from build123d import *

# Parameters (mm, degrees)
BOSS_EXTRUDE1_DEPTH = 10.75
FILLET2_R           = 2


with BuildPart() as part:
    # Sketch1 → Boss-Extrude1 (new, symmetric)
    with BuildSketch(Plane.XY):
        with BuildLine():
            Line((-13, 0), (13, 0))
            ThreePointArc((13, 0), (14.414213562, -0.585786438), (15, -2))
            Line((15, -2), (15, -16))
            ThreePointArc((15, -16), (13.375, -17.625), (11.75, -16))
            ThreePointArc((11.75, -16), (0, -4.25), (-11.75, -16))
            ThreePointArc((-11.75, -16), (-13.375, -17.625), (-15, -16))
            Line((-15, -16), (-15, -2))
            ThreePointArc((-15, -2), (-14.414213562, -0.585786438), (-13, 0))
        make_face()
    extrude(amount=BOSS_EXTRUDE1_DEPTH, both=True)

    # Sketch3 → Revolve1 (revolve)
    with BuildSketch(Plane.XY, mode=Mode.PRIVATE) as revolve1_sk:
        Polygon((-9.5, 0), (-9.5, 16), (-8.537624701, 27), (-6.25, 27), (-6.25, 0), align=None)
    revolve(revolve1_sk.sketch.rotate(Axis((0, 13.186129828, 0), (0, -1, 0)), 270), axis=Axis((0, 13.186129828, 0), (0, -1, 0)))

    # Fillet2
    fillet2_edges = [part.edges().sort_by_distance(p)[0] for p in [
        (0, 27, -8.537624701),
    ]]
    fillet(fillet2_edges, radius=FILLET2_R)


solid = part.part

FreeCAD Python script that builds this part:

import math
import FreeCAD as App
import Part
import Sketcher

V = App.Vector
Q = App.Units.Quantity


def edges_at(feature, points):
    """Names of the edges that pass closest to the given points."""
    edges = feature.Shape.Edges
    near = lambda p: min(range(len(edges)), key=lambda i: edges[i].distToShape(Part.Vertex(*p))[0])
    return sorted({f"Edge{near(p) + 1}" for p in points})

doc = App.newDocument("Part")
body = doc.addObject("PartDesign::Body", "Body")

# Sketch on XY plane
sketch1 = body.newObject("Sketcher::SketchObject", "Sketch")
sketch1.AttachmentSupport = (doc.getObject("XY_Plane"), [""])
sketch1.MapMode = "FlatFace"
sketch1.addGeometry(Part.LineSegment(V(13, 0, 0), V(-13, 0, 0)), False)
sketch1.addGeometry(Part.ArcOfCircle(Part.Circle(V(-13, -2, 0), V(0, 0, 1), 2), math.radians(90), math.radians(180)), False)
sketch1.addGeometry(Part.LineSegment(V(-15, -2, 0), V(-15, -16, 0)), False)
sketch1.addGeometry(Part.ArcOfCircle(Part.Circle(V(-13.375, -16, 0), V(0, 0, 1), 1.625), math.radians(180), math.radians(360)), False)
sketch1.addGeometry(Part.ArcOfCircle(Part.Circle(V(0, -16, 0), V(0, 0, 1), 11.75), math.radians(0), math.radians(180)), False)
sketch1.addGeometry(Part.ArcOfCircle(Part.Circle(V(13.375, -16, 0), V(0, 0, 1), 1.625), math.radians(180), math.radians(360)), False)
sketch1.addGeometry(Part.LineSegment(V(15, -16, 0), V(15, -2, 0)), False)
sketch1.addGeometry(Part.ArcOfCircle(Part.Circle(V(13, -2, 0), V(0, 0, 1), 2), math.radians(0), math.radians(90)), False)
sketch1.addConstraint(Sketcher.Constraint("Tangent", 0, 2, 1, 1))
sketch1.addConstraint(Sketcher.Constraint("Tangent", 1, 2, 2, 1))
sketch1.addConstraint(Sketcher.Constraint("Tangent", 2, 2, 3, 1))
sketch1.addConstraint(Sketcher.Constraint("Tangent", 3, 2, 4, 2))
sketch1.addConstraint(Sketcher.Constraint("Tangent", 4, 1, 5, 1))
sketch1.addConstraint(Sketcher.Constraint("Tangent", 5, 2, 6, 1))
sketch1.addConstraint(Sketcher.Constraint("Tangent", 6, 2, 7, 1))
sketch1.addConstraint(Sketcher.Constraint("Tangent", 7, 2, 0, 1))
sketch1.addConstraint(Sketcher.Constraint("Horizontal", 0))
sketch1.addConstraint(Sketcher.Constraint("Vertical", 2))
sketch1.addConstraint(Sketcher.Constraint("Vertical", 6))
sketch1.addConstraint(Sketcher.Constraint("Equal", 3, 5))
sketch1.addConstraint(Sketcher.Constraint("Equal", 1, 7))
sketch1.addConstraint(Sketcher.Constraint("Symmetric", 0, 2, 7, 2, -1, 1))
sketch1.addConstraint(Sketcher.Constraint("Horizontal", 3, 3, 4, 3))
sketch1.addConstraint(Sketcher.Constraint("Horizontal", 4, 3, 5, 3))
sketch1.addConstraint(Sketcher.Constraint("Radius", 1, 2.0))
sketch1.addConstraint(Sketcher.Constraint("DistanceX", 0, 2, 0, 1, 26.0))
sketch1.addConstraint(Sketcher.Constraint("DistanceY", 2, 2, 2, 1, 14.0))
sketch1.addConstraint(Sketcher.Constraint("Radius", 4, 11.75))
pad1 = body.newObject("PartDesign::Pad", "Pad")
pad1.Profile = sketch1
pad1.Length = 21.5
pad1.Midplane = True

# Sketch on XY plane
sketch2 = body.newObject("Sketcher::SketchObject", "Sketch001")
sketch2.AttachmentSupport = (doc.getObject("XY_Plane"), [""])
sketch2.MapMode = "FlatFace"
sketch2.addGeometry(Part.LineSegment(V(-9.5, 16, 0), V(-9.5, 0, 0)), False)
sketch2.addGeometry(Part.LineSegment(V(-9.5, 0, 0), V(-6.25, 0, 0)), False)
sketch2.addGeometry(Part.LineSegment(V(-6.25, 0, 0), V(-6.25, 27, 0)), False)
sketch2.addGeometry(Part.LineSegment(V(-6.25, 27, 0), V(-8.537625, 27, 0)), False)
sketch2.addGeometry(Part.LineSegment(V(-8.537625, 27, 0), V(-9.5, 16, 0)), False)
sketch2.addConstraint(Sketcher.Constraint("Coincident", 0, 2, 1, 1))
sketch2.addConstraint(Sketcher.Constraint("Coincident", 1, 2, 2, 1))
sketch2.addConstraint(Sketcher.Constraint("Coincident", 2, 2, 3, 1))
sketch2.addConstraint(Sketcher.Constraint("Coincident", 3, 2, 4, 1))
sketch2.addConstraint(Sketcher.Constraint("Coincident", 4, 2, 0, 1))
sketch2.addConstraint(Sketcher.Constraint("Vertical", 0))
sketch2.addConstraint(Sketcher.Constraint("Horizontal", 1))
sketch2.addConstraint(Sketcher.Constraint("Vertical", 2))
sketch2.addConstraint(Sketcher.Constraint("Horizontal", 3))
sketch2.addConstraint(Sketcher.Constraint("PointOnObject", 0, 2, -1))
sketch2.addConstraint(Sketcher.Constraint("DistanceY", 0, 2, 0, 1, 16.0))
sketch2.addConstraint(Sketcher.Constraint("DistanceY", 2, 1, 2, 2, 27.0))
sketch2.addConstraint(Sketcher.Constraint("Angle", 4, Q("-95 deg")))
sketch2.addConstraint(Sketcher.Constraint("DistanceX", 1, 1, 1, 2, 3.25))
sketch2.addConstraint(Sketcher.Constraint("DistanceX", 0, 2, -1, 1, 9.5))
revolution = body.newObject("PartDesign::Revolution", "Revolution")
revolution.Profile = sketch2
revolution.ReferenceAxis = (sketch2, ["V_Axis"])
revolution.Angle = 360
doc.recompute()

fillet = body.newObject("PartDesign::Fillet", "Fillet")
fillet.Base = (revolution, edges_at(revolution, [(0, 27, -8.538)]))
fillet.Radius = 2

doc.recompute()
